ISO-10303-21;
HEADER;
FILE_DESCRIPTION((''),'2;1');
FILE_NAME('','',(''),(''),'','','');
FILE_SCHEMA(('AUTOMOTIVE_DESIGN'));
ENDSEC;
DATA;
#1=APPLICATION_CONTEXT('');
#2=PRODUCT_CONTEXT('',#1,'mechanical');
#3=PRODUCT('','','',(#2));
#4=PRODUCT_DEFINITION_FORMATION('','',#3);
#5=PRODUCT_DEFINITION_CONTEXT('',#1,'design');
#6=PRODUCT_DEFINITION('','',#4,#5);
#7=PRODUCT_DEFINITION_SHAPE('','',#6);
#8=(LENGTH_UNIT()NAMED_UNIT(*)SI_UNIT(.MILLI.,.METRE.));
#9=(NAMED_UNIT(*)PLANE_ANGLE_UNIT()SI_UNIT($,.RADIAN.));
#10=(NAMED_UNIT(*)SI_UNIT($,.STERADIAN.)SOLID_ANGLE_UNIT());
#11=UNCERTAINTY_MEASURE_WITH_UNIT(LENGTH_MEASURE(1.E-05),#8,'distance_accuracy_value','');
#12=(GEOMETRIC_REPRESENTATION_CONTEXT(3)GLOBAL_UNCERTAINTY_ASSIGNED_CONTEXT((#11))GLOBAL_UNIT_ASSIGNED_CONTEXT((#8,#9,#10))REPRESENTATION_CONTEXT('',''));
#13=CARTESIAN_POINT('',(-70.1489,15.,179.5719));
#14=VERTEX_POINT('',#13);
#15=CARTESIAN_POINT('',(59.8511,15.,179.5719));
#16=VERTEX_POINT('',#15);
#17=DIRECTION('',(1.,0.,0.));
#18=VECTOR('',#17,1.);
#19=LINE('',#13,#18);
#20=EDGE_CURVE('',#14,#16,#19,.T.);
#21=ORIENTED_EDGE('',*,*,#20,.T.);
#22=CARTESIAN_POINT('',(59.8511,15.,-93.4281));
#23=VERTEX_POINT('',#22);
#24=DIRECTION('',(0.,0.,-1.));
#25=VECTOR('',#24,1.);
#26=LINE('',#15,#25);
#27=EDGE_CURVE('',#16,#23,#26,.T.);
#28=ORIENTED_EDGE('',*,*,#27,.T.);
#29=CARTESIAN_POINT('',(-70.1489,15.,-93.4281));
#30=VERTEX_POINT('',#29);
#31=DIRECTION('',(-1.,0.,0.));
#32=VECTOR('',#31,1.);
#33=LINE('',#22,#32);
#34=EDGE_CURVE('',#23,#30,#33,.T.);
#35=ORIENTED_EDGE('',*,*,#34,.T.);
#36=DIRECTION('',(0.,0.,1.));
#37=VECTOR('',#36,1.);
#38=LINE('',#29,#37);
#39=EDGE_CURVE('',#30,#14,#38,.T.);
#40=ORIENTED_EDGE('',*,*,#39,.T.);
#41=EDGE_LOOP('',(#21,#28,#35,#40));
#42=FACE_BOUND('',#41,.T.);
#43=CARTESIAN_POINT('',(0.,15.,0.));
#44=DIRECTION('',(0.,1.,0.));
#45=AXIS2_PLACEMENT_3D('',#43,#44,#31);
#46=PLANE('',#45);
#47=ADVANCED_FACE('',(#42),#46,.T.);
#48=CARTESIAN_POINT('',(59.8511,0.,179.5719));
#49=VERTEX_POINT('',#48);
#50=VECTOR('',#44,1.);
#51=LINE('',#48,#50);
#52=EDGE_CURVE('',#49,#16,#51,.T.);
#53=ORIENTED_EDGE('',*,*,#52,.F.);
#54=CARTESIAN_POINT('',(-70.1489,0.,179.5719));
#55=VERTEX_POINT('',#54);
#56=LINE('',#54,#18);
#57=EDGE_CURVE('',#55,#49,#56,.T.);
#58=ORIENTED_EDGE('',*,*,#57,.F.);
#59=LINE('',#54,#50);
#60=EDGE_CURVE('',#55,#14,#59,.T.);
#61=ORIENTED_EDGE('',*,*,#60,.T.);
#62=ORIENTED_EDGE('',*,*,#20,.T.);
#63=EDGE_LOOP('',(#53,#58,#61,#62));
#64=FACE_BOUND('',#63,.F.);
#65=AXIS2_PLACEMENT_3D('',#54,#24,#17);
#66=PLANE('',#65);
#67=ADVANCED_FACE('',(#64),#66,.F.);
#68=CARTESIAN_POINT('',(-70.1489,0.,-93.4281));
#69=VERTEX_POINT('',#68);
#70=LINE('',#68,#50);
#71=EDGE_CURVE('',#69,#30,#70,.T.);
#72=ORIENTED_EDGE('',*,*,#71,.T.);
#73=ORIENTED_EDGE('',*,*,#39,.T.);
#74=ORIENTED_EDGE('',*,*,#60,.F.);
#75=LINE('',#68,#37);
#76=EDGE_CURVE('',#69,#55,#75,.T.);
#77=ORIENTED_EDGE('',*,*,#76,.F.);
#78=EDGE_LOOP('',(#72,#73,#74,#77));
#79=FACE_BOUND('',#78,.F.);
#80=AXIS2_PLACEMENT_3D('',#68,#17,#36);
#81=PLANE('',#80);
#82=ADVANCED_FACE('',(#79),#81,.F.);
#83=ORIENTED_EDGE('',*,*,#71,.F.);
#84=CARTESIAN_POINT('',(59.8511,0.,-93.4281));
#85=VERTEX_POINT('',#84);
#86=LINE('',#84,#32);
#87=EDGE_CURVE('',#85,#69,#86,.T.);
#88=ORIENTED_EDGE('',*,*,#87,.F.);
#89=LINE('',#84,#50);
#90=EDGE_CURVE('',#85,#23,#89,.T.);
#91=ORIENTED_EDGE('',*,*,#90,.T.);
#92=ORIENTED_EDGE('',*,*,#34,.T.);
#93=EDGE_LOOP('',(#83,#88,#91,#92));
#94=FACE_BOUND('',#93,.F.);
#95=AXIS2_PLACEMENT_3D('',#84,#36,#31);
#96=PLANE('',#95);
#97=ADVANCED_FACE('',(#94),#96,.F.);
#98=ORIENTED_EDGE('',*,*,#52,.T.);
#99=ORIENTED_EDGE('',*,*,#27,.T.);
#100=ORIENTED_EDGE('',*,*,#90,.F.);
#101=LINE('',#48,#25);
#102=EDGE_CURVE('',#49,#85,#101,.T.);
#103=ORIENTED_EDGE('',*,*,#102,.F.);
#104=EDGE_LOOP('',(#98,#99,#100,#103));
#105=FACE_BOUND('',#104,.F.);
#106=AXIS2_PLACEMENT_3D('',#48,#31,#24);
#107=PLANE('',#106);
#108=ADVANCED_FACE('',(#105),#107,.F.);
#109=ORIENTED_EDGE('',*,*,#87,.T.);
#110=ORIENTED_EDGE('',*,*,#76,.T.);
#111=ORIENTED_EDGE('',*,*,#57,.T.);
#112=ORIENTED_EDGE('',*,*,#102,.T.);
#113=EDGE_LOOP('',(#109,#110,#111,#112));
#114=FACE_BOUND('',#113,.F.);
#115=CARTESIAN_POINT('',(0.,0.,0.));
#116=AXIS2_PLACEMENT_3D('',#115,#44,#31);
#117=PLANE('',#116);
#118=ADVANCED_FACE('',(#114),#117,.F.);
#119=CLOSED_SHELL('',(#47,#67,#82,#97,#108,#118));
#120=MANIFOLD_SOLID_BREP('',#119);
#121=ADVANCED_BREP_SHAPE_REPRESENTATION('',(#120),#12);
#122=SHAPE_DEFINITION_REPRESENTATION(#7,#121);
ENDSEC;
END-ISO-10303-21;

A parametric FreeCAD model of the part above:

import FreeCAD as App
import Part
import Sketcher
Q = App.Units.Quantity

doc = App.newDocument("Part")
body = doc.addObject("PartDesign::Body", "Body")

# Sketch on XZ plane
sketch1 = doc.addObject("Sketcher::SketchObject", "Sketch")
body.addObject(sketch1)
sketch1.AttachmentSupport = (doc.XZ_Plane, [""])
sketch1.MapMode = "FlatFace"
sketch1.addGeometry(Part.LineSegment(App.Vector(-70, -93, 0), App.Vector(-70, 180, 0)), False)
sketch1.addGeometry(Part.LineSegment(App.Vector(-70, 180, 0), App.Vector(60, 180, 0)), False)
sketch1.addGeometry(Part.LineSegment(App.Vector(60, 180, 0), App.Vector(60, -93, 0)), False)
sketch1.addGeometry(Part.LineSegment(App.Vector(60, -93, 0), App.Vector(-70, -93, 0)), False)
sketch1.addConstraint(Sketcher.Constraint("Coincident", 0, 2, 1, 1))
sketch1.addConstraint(Sketcher.Constraint("Coincident", 1, 2, 2, 1))
sketch1.addConstraint(Sketcher.Constraint("Coincident", 2, 2, 3, 1))
sketch1.addConstraint(Sketcher.Constraint("Coincident", 3, 2, 0, 1))
sketch1.addConstraint(Sketcher.Constraint("Vertical", 0))
sketch1.addConstraint(Sketcher.Constraint("Horizontal", 1))
sketch1.addConstraint(Sketcher.Constraint("Vertical", 2))
sketch1.addConstraint(Sketcher.Constraint("Horizontal", 3))
sketch1.addConstraint(Sketcher.Constraint("DistanceX", 1, 1, 1, 2, Q("130 mm")))
sketch1.addConstraint(Sketcher.Constraint("DistanceY", 0, 1, 0, 2, Q("273 mm")))
sketch1.addConstraint(Sketcher.Constraint("DistanceX", 0, 2, -1, 1, Q("70.149 mm")))
sketch1.addConstraint(Sketcher.Constraint("DistanceY", -1, 1, 0, 2, Q("179.572 mm")))
pad1 = doc.addObject("PartDesign::Pad", "Pad")
body.addObject(pad1)
pad1.Profile = sketch1
pad1.Length = 15
pad1.Reversed = True

doc.recompute()
